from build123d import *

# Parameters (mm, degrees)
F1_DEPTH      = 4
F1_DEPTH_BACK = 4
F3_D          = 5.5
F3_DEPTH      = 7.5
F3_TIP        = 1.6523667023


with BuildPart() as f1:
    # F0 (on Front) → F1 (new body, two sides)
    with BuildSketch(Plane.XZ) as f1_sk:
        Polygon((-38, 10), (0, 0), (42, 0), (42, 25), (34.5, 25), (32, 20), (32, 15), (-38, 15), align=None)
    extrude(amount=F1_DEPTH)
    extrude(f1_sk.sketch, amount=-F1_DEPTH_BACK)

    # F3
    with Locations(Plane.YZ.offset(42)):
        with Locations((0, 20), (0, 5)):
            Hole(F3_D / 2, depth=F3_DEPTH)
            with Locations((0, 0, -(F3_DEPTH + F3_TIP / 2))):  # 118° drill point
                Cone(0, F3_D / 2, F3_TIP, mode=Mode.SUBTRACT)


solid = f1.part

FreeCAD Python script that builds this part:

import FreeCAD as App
import Part
import Sketcher


def add_polygon(sketch, points):
    """Adds a closed chain of lines whose ends are joined by coincident constraints."""
    first, n = sketch.GeometryCount, len(points)
    for a, b in zip(points, points[1:] + points[:1]):
        sketch.addGeometry(Part.LineSegment(App.Vector(*a, 0), App.Vector(*b, 0)), False)
    for i in range(n):
        sketch.addConstraint(Sketcher.Constraint("Coincident", first + i, 2, first + (i + 1) % n, 1))

doc = App.newDocument("Part")
body = doc.addObject("PartDesign::Body", "Body")

# Sketch on XZ plane
sketch1 = doc.addObject("Sketcher::SketchObject", "Sketch")
body.addObject(sketch1)
sketch1.AttachmentSupport = (doc.XZ_Plane, [""])
sketch1.MapMode = "FlatFace"
add_polygon(sketch1, [(-38, 10), (0, 0), (42, 0), (42, 25), (34, 25), (32, 20), (32, 15), (-38, 15)])  # lines 0-7
sketch1.addConstraint([
    Sketcher.Constraint("Horizontal", 1),
    Sketcher.Constraint("Vertical", 2),
    Sketcher.Constraint("Horizontal", 3),
    Sketcher.Constraint("Vertical", 5),
    Sketcher.Constraint("Horizontal", 6),
    Sketcher.Constraint("Vertical", 7),
    Sketcher.Constraint("Coincident", 0, 2, -1, 1),
    Sketcher.Constraint("Equal", 5, 7),
    Sketcher.Constraint("DistanceX", 1, 1, 1, 2, 42.0),
    Sketcher.Constraint("DistanceX", 6, 2, 6, 1, 70.0),
    Sketcher.Constraint("DistanceY", 2, 1, 2, 2, 25.0),
    Sketcher.Constraint("DistanceY", 5, 2, 5, 1, 5.0),
    Sketcher.Constraint("DistanceX", 3, 2, 3, 1, 7.5),
    Sketcher.Constraint("DistanceX", -1, 1, 4, 2, 32.0),
    Sketcher.Constraint("DistanceY", -1, 1, 4, 2, 20.0),
])
pad1 = doc.addObject("PartDesign::Pad", "Pad")
body.addObject(pad1)
pad1.Profile = sketch1
pad1.Type = "TwoLengths"
pad1.Length = 4
pad1.Length2 = 4

# Sketch on YZ plane
sketch2 = doc.addObject("Sketcher::SketchObject", "Sketch001")
body.addObject(sketch2)
sketch2.AttachmentSupport = (doc.YZ_Plane, [""])
sketch2.MapMode = "FlatFace"
sketch2.AttachmentOffset = App.Placement(App.Vector(0, 0, 42), App.Rotation())
sketch2.addGeometry([
    Part.Circle(App.Vector(0, 20, 0), App.Vector(0, 0, 1), 2.8),
    Part.Circle(App.Vector(0, 5, 0), App.Vector(0, 0, 1), 2.8),
], False)
sketch2.addConstraint([
    Sketcher.Constraint("Equal", 0, 1),
    Sketcher.Constraint("PointOnObject", 0, 3, -2),
    Sketcher.Constraint("PointOnObject", 1, 3, -2),
    Sketcher.Constraint("Diameter", 0, 5.5),
    Sketcher.Constraint("DistanceY", -1, 1, 0, 3, 20.0),
    Sketcher.Constraint("DistanceY", -1, 1, 1, 3, 5.0),
])
doc.recompute()
hole = doc.addObject("PartDesign::Hole", "Hole")
body.addObject(hole)
hole.Profile = sketch2
hole.ThreadType = "None"
hole.Diameter = 5.5
hole.DepthType = "Dimension"
hole.Depth = 7.5
hole.DrillPoint = "Angled"
hole.DrillPointAngle = 118

doc.recompute()
